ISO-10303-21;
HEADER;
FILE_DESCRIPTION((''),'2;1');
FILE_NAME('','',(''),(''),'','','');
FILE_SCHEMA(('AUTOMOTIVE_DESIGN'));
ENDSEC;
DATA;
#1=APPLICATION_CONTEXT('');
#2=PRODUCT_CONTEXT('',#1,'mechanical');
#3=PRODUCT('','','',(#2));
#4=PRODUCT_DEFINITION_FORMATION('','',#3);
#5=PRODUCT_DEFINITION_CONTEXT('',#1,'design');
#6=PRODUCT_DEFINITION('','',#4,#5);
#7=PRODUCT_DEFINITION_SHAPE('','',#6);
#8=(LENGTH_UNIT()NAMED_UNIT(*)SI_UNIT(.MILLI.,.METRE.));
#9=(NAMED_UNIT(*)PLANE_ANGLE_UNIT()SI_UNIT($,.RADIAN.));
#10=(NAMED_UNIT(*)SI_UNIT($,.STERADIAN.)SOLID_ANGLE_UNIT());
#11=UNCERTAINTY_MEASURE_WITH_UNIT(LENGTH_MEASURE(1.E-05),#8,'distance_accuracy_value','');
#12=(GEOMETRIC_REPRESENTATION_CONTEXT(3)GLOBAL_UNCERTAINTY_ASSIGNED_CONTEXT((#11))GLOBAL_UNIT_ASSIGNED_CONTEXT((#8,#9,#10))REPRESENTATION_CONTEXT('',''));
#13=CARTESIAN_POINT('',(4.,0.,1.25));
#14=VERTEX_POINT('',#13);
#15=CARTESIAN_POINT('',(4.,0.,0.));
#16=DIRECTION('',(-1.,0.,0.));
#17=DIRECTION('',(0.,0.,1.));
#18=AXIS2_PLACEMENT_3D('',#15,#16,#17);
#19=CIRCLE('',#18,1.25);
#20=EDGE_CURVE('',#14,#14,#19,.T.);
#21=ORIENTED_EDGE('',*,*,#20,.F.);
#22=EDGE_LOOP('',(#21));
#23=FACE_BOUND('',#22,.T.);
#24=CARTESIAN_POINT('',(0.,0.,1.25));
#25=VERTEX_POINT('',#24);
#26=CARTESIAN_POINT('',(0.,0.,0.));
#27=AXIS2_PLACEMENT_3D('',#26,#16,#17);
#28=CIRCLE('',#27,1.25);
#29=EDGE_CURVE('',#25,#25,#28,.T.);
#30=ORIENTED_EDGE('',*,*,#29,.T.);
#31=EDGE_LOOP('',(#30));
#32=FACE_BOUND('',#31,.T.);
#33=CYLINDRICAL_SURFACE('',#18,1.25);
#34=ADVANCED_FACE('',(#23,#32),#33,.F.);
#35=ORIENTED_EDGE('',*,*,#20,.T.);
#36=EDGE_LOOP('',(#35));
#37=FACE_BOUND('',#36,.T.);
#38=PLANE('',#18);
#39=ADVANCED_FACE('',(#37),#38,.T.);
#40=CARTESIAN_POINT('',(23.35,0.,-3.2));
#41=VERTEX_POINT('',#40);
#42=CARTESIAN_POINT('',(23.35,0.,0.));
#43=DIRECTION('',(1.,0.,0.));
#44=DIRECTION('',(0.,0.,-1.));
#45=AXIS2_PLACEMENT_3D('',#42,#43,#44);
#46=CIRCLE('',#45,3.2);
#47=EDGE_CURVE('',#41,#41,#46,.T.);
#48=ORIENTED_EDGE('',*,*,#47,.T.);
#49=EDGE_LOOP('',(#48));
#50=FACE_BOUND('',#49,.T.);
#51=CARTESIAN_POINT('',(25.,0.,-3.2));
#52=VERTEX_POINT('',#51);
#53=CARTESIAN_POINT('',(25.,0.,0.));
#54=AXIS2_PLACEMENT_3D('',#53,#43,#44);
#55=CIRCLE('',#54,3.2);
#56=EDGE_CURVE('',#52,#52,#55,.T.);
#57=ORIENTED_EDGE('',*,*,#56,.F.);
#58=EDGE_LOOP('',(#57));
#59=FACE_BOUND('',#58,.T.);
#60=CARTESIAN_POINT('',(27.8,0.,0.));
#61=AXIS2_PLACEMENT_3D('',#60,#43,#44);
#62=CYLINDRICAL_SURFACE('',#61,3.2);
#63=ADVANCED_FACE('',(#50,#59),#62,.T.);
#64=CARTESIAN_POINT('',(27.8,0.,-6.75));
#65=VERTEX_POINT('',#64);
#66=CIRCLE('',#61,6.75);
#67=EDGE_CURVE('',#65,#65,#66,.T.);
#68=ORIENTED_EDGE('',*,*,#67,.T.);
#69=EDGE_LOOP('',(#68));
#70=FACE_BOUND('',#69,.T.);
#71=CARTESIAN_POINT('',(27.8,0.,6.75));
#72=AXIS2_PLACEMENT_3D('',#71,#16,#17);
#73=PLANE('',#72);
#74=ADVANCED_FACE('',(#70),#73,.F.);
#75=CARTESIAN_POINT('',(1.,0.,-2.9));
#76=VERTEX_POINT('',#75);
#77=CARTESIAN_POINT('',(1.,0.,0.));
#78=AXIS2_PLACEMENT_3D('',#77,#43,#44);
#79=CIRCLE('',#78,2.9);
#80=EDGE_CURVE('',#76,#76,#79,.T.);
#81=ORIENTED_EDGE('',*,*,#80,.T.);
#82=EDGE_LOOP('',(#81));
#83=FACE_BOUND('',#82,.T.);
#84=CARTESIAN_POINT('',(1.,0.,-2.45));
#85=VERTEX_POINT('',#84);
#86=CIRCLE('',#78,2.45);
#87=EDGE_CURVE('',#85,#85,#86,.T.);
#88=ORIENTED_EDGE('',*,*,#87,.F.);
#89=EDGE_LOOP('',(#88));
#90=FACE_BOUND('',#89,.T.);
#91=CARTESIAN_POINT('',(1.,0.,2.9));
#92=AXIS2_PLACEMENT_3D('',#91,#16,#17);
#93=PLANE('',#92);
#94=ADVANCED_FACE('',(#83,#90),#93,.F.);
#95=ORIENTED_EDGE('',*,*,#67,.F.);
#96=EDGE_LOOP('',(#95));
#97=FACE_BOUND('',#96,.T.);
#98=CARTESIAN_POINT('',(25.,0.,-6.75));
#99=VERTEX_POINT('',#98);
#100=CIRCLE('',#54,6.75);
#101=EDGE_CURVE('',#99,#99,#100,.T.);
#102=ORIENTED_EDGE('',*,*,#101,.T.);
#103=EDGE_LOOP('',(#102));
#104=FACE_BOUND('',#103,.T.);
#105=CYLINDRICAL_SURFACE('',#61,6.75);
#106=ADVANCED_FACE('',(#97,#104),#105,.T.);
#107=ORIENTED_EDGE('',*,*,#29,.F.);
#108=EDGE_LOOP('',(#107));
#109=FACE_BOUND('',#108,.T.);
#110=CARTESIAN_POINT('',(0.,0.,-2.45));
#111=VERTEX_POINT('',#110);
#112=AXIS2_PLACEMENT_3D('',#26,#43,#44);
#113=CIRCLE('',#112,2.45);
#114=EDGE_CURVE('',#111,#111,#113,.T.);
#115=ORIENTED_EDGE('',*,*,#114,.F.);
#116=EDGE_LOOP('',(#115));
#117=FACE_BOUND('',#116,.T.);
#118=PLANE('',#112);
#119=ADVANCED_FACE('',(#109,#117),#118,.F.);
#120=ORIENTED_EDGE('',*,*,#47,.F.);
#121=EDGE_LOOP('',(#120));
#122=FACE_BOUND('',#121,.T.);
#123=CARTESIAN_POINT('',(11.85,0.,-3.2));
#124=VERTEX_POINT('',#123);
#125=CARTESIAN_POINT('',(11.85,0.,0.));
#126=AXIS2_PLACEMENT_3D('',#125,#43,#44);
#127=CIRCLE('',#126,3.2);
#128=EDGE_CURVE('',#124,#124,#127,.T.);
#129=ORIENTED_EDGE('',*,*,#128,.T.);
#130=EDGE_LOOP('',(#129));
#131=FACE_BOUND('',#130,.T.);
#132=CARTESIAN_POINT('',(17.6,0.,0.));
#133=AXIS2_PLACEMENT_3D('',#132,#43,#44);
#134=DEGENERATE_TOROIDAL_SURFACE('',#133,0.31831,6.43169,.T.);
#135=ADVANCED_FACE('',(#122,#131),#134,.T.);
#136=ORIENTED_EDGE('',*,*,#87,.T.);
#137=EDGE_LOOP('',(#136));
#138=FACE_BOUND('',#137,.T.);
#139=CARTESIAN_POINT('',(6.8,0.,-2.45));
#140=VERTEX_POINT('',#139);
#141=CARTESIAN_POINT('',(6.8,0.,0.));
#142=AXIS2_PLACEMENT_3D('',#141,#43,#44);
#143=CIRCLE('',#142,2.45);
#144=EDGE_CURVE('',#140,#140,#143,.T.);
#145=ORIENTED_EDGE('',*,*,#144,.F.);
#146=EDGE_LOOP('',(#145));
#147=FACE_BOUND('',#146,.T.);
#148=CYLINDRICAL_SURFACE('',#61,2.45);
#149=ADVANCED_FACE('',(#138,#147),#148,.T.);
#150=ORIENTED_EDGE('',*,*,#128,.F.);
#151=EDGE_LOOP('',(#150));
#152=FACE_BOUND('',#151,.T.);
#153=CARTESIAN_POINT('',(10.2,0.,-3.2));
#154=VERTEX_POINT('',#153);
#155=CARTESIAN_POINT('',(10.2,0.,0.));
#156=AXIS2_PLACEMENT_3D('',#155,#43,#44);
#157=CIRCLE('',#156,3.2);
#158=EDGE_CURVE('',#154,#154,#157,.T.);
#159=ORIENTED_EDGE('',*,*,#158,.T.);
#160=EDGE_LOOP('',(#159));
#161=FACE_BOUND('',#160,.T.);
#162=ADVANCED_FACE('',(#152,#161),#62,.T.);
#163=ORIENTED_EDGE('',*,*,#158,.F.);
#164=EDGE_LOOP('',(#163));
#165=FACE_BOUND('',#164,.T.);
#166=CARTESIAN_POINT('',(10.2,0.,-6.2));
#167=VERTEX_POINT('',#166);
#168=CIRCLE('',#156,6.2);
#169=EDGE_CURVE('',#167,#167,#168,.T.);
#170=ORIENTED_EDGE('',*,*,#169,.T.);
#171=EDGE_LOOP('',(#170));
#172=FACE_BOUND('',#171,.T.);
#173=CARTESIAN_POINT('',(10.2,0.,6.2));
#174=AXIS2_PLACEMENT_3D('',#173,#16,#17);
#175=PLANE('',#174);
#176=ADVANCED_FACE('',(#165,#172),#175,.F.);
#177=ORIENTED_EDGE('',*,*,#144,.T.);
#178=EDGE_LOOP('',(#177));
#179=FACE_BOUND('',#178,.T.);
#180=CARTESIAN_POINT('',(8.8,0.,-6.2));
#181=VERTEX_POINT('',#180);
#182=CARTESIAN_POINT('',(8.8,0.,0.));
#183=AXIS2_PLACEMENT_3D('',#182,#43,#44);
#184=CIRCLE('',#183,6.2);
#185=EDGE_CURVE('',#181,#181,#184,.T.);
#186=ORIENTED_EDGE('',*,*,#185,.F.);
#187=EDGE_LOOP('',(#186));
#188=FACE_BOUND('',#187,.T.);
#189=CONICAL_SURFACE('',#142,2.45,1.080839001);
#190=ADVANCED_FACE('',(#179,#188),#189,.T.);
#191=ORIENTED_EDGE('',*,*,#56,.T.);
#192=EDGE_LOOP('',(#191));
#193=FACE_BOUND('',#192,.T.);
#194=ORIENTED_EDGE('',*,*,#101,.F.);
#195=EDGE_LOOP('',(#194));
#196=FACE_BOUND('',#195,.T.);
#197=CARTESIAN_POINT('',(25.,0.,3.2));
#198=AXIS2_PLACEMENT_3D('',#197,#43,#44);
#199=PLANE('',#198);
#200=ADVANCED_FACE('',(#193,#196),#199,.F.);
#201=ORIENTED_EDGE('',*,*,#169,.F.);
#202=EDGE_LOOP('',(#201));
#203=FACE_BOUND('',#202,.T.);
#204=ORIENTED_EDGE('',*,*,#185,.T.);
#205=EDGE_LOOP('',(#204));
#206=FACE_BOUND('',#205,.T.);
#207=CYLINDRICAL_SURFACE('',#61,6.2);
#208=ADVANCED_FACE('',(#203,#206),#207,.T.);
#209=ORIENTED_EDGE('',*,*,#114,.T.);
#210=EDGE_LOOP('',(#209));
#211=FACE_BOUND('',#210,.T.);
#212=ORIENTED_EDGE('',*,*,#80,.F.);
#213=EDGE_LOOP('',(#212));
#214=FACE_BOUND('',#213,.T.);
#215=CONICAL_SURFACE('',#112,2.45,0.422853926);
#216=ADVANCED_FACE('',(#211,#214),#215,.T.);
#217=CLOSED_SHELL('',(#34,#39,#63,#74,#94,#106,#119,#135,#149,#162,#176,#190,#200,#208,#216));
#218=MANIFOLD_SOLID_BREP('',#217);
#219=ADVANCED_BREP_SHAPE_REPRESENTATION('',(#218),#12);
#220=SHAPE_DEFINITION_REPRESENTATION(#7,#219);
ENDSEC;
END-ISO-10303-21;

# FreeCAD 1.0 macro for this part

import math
import FreeCAD as App
import Part
import Sketcher

doc = App.newDocument("Part")
params = doc.addObject("Spreadsheet::Sheet", "Params")
for row, (alias, value) in enumerate([
    ("sketch1_height", "3 mm"),
    ("sketch1_width", "5.8 mm"),
    ("sketch1_width2", "1.4 mm"),
    ("sketch1_width3", "2.8 mm"),
    ("sketch1_width4", "27.8 mm"),
    ("revolution_angle", "360 deg"),
    ("sketch2_diameter", "2.5 mm"),
    ("pocket1_length", "4 mm"),
], start=1):
    params.set(f"A{row}", alias)
    params.set(f"B{row}", "=" + value)
    params.setAlias(f"B{row}", alias)

body = doc.addObject("PartDesign::Body", "Body")

# Sketch on XZ plane
sketch1 = body.newObject("Sketcher::SketchObject", "Sketch")
sketch1.AttachmentSupport = (doc.getObject("XZ_Plane"), [""])
sketch1.MapMode = "FlatFace"
sketch1.addGeometry(Part.LineSegment(App.Vector(0, 0, 0), App.Vector(0, 2.45, 0)), False)
sketch1.addGeometry(Part.LineSegment(App.Vector(0, 2.45, 0), App.Vector(1, 2.9, 0)), False)
sketch1.addGeometry(Part.LineSegment(App.Vector(1, 2.9, 0), App.Vector(1, 2.45, 0)), False)
sketch1.addGeometry(Part.LineSegment(App.Vector(1, 2.45, 0), App.Vector(6.8, 2.45, 0)), False)
sketch1.addGeometry(Part.LineSegment(App.Vector(6.8, 2.45, 0), App.Vector(8.8, 6.2, 0)), False)
sketch1.addGeometry(Part.LineSegment(App.Vector(8.8, 6.2, 0), App.Vector(10.2, 6.2, 0)), False)
sketch1.addGeometry(Part.LineSegment(App.Vector(10.2, 6.2, 0), App.Vector(10.2, 3.2, 0)), False)
sketch1.addGeometry(Part.LineSegment(App.Vector(10.2, 3.2, 0), App.Vector(11.85, 3.2, 0)), False)
sketch1.addGeometry(Part.ArcOfCircle(Part.Circle(App.Vector(17.6, 0.32, 0), App.Vector(0, 0, 1), 6.43), math.radians(27), math.radians(153)), False)
sketch1.addGeometry(Part.LineSegment(App.Vector(23.35, 3.2, 0), App.Vector(25, 3.2, 0)), False)
sketch1.addGeometry(Part.LineSegment(App.Vector(25, 3.2, 0), App.Vector(25, 6.75, 0)), False)
sketch1.addGeometry(Part.LineSegment(App.Vector(25, 6.75, 0), App.Vector(27.8, 6.75, 0)), False)
sketch1.addGeometry(Part.LineSegment(App.Vector(27.8, 6.75, 0), App.Vector(27.8, 0, 0)), False)
sketch1.addGeometry(Part.LineSegment(App.Vector(27.8, 0, 0), App.Vector(0, 0, 0)), False)
sketch1.addConstraint(Sketcher.Constraint("Coincident", 0, 2, 1, 1))
sketch1.addConstraint(Sketcher.Constraint("Coincident", 1, 2, 2, 1))
sketch1.addConstraint(Sketcher.Constraint("Coincident", 2, 2, 3, 1))
sketch1.addConstraint(Sketcher.Constraint("Coincident", 3, 2, 4, 1))
sketch1.addConstraint(Sketcher.Constraint("Coincident", 4, 2, 5, 1))
sketch1.addConstraint(Sketcher.Constraint("Coincident", 5, 2, 6, 1))
sketch1.addConstraint(Sketcher.Constraint("Coincident", 6, 2, 7, 1))
sketch1.addConstraint(Sketcher.Constraint("Coincident", 7, 2, 8, 2))
sketch1.addConstraint(Sketcher.Constraint("Coincident", 8, 1, 9, 1))
sketch1.addConstraint(Sketcher.Constraint("Coincident", 9, 2, 10, 1))
sketch1.addConstraint(Sketcher.Constraint("Coincident", 10, 2, 11, 1))
sketch1.addConstraint(Sketcher.Constraint("Coincident", 11, 2, 12, 1))
sketch1.addConstraint(Sketcher.Constraint("Coincident", 12, 2, 13, 1))
sketch1.addConstraint(Sketcher.Constraint("Coincident", 13, 2, 0, 1))
sketch1.addConstraint(Sketcher.Constraint("Vertical", 0))
sketch1.addConstraint(Sketcher.Constraint("Vertical", 2))
sketch1.addConstraint(Sketcher.Constraint("Horizontal", 3))
sketch1.addConstraint(Sketcher.Constraint("Horizontal", 5))
sketch1.addConstraint(Sketcher.Constraint("Vertical", 6))
sketch1.addConstraint(Sketcher.Constraint("Horizontal", 7))
sketch1.addConstraint(Sketcher.Constraint("Horizontal", 9))
sketch1.addConstraint(Sketcher.Constraint("Vertical", 10))
sketch1.addConstraint(Sketcher.Constraint("Horizontal", 11))
sketch1.addConstraint(Sketcher.Constraint("Vertical", 12))
sketch1.addConstraint(Sketcher.Constraint("Horizontal", 13))
sketch1.addConstraint(Sketcher.Constraint("Coincident", 13, 2, -1, 1))
sketch1.addConstraint(Sketcher.Constraint("Horizontal", 0, 2, 2, 2))
sketch1.addConstraint(Sketcher.Constraint("Horizontal", 7, 2, 8, 1))
sketch1.addConstraint(Sketcher.Constraint("Equal", 7, 9))
sketch1.addConstraint(Sketcher.Constraint("DistanceY", 6, 2, 6, 1, 3.0))
sketch1.addConstraint(Sketcher.Constraint("DistanceX", 3, 1, 3, 2, 5.8))
sketch1.addConstraint(Sketcher.Constraint("DistanceX", 5, 1, 5, 2, 1.4))
sketch1.addConstraint(Sketcher.Constraint("DistanceX", 11, 1, 11, 2, 2.8))
sketch1.addConstraint(Sketcher.Constraint("DistanceX", 13, 2, 13, 1, 27.8))
sketch1.addConstraint(Sketcher.Constraint("DistanceX", -1, 1, 1, 2, 1.0))
sketch1.addConstraint(Sketcher.Constraint("DistanceX", 3, 2, 4, 2, 2.0))
sketch1.addConstraint(Sketcher.Constraint("DistanceX", 7, 1, 7, 2, 1.65))
sketch1.addConstraint(Sketcher.Constraint("DistanceY", 0, 1, 0, 2, 2.45))
sketch1.addConstraint(Sketcher.Constraint("DistanceY", 2, 2, 2, 1, 0.45))
sketch1.addConstraint(Sketcher.Constraint("DistanceY", 10, 1, 10, 2, 3.55))
sketch1.addConstraint(Sketcher.Constraint("DistanceY", 12, 2, 12, 1, 6.75))
sketch1.addConstraint(Sketcher.Constraint("Radius", 8, 6.43169))
sketch1.setExpression("Constraints[29]", "Params.sketch1_height")
sketch1.setExpression("Constraints[30]", "Params.sketch1_width")
sketch1.setExpression("Constraints[31]", "Params.sketch1_width2")
sketch1.setExpression("Constraints[32]", "Params.sketch1_width3")
sketch1.setExpression("Constraints[33]", "Params.sketch1_width4")
revolution = body.newObject("PartDesign::Revolution", "Revolution")
revolution.Profile = sketch1
revolution.ReferenceAxis = (sketch1, ["H_Axis"])
revolution.setExpression("Angle", "Params.revolution_angle")

# Sketch on YZ plane
sketch2 = body.newObject("Sketcher::SketchObject", "Sketch001")
sketch2.AttachmentSupport = (doc.getObject("YZ_Plane"), [""])
sketch2.MapMode = "FlatFace"
sketch2.addGeometry(Part.Circle(App.Vector(0, 0, 0), App.Vector(0, 0, 1), 1.2), False)
sketch2.addConstraint(Sketcher.Constraint("Coincident", 0, 3, -1, 1))
sketch2.addConstraint(Sketcher.Constraint("Diameter", 0, 2.5))
sketch2.setExpression("Constraints[1]", "Params.sketch2_diameter")
pocket1 = body.newObject("PartDesign::Pocket", "Pocket")
pocket1.Profile = sketch2
pocket1.setExpression("Length", "Params.pocket1_length")
pocket1.Reversed = True

doc.recompute()
